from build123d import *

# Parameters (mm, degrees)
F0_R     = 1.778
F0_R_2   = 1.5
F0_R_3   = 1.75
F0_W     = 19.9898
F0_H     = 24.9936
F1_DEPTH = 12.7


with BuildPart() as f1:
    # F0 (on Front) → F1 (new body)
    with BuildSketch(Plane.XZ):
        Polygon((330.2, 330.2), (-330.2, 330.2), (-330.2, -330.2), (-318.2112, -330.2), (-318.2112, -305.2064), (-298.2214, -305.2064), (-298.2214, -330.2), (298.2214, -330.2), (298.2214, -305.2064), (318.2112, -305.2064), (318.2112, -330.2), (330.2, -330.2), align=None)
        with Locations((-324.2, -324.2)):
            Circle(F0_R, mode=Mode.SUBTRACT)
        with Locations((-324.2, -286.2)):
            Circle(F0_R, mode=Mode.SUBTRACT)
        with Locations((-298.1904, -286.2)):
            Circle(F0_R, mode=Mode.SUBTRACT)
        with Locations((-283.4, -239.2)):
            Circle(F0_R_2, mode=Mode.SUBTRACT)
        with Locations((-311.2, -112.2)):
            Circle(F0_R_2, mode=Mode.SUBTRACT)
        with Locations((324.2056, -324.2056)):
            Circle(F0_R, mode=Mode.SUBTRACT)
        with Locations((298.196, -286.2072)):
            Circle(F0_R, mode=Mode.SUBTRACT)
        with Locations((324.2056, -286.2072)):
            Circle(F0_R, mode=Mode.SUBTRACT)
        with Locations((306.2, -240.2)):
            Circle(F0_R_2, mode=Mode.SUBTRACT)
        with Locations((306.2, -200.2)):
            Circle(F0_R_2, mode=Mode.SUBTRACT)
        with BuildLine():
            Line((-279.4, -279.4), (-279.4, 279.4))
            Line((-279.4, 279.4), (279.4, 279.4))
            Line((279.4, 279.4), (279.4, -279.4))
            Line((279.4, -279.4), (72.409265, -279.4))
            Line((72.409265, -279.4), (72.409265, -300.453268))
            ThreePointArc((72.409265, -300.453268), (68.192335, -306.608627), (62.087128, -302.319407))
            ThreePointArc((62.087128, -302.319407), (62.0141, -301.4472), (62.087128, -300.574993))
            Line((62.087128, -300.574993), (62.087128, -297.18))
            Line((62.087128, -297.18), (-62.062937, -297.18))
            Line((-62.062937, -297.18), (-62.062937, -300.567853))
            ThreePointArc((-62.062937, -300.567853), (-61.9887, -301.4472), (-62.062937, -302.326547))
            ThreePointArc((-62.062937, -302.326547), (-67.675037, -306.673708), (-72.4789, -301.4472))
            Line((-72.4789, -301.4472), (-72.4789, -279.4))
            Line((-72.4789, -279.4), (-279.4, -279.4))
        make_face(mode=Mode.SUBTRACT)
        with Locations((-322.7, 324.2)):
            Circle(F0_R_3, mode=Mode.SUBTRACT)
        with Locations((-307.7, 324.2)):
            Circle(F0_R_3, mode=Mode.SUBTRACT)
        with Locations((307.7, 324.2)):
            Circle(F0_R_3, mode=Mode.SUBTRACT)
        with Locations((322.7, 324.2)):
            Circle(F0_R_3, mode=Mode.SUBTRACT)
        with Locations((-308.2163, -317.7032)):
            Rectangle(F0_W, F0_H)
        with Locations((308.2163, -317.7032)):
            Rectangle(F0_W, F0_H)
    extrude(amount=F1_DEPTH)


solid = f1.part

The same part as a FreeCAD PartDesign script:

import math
import FreeCAD as App
import Part
import Sketcher
from FreeCAD import Vector
Q = App.Units.Quantity


def add_polygon(sketch, points):
    """Adds a closed chain of lines whose ends are joined by coincident constraints."""
    first, n = sketch.GeometryCount, len(points)
    for a, b in zip(points, points[1:] + points[:1]):
        sketch.addGeometry(Part.LineSegment(App.Vector(*a, 0), App.Vector(*b, 0)), False)
    for i in range(n):
        sketch.addConstraint(Sketcher.Constraint("Coincident", first + i, 2, first + (i + 1) % n, 1))

doc = App.newDocument("Part")
body = doc.addObject("PartDesign::Body", "Body")

sketch1 = body.newObject("Sketcher::SketchObject", "Sketch")
sketch1.AttachmentSupport = (doc.getObject("XZ_Plane"), [""])
sketch1.MapMode = "FlatFace"
add_polygon(sketch1, [(330.2, 330.2), (-330.2, 330.2), (-330.2, -330.2), (330.2, -330.2)])
sketch1.addGeometry(Part.Circle(Vector(-324.2, -324.2, 0), Vector(0, 0, 1), 1.778), False)
sketch1.addGeometry(Part.Circle(Vector(-324.2, -286.2, 0), Vector(0, 0, 1), 1.778), False)
sketch1.addGeometry(Part.Circle(Vector(-298.1904, -286.2, 0), Vector(0, 0, 1), 1.778), False)
sketch1.addGeometry(Part.Circle(Vector(-283.4, -239.2, 0), Vector(0, 0, 1), 1.5), False)
sketch1.addGeometry(Part.Circle(Vector(-311.2, -112.2, 0), Vector(0, 0, 1), 1.5), False)
sketch1.addGeometry(Part.LineSegment(Vector(-72.4789, -279.4, 0), Vector(-279.4, -279.4, 0)), False)
sketch1.addGeometry(Part.LineSegment(Vector(-279.4, -279.4, 0), Vector(-279.4, 279.4, 0)), False)
sketch1.addGeometry(Part.LineSegment(Vector(-279.4, 279.4, 0), Vector(279.4, 279.4, 0)), False)
sketch1.addGeometry(Part.LineSegment(Vector(279.4, 279.4, 0), Vector(279.4, -279.4, 0)), False)
sketch1.addGeometry(Part.LineSegment(Vector(279.4, -279.4, 0), Vector(72.409265, -279.4, 0)), False)
sketch1.addGeometry(Part.LineSegment(Vector(72.409265, -279.4, 0), Vector(72.409265, -300.453268, 0)), False)
sketch1.addGeometry(Part.ArcOfCircle(Part.Circle(Vector(67.2592, -301.4472, 0), Vector(0, 0, 1), 5.2451), math.radians(-170.427824), math.radians(10.923444)), False)
sketch1.addGeometry(Part.ArcOfCircle(Part.Circle(Vector(67.259199, -301.4472, 0), Vector(0, 0, 1), 5.245099), math.radians(170.427824), math.radians(189.572176)), False)
sketch1.addGeometry(Part.LineSegment(Vector(62.087128, -300.574993, 0), Vector(62.087128, -297.18, 0)), False)
sketch1.addGeometry(Part.LineSegment(Vector(62.087128, -297.18, 0), Vector(-62.062937, -297.18, 0)), False)
sketch1.addGeometry(Part.LineSegment(Vector(-62.062937, -297.18, 0), Vector(-62.062937, -300.567853, 0)), False)
sketch1.addGeometry(Part.ArcOfCircle(Part.Circle(Vector(-67.233809, -301.4472, 0), Vector(0, 0, 1), 5.245109), math.radians(-9.651263), math.radians(9.651263)), False)
sketch1.addGeometry(Part.ArcOfCircle(Part.Circle(Vector(-67.2338, -301.4472, 0), Vector(0, 0, 1), 5.2451), math.radians(179.999998), math.radians(350.348722)), False)
sketch1.addGeometry(Part.LineSegment(Vector(-72.4789, -301.4472, 0), Vector(-72.4789, -279.4, 0)), False)
sketch1.addGeometry(Part.Circle(Vector(324.2056, -324.2056, 0), Vector(0, 0, 1), 1.778), False)
sketch1.addGeometry(Part.Circle(Vector(298.196, -286.2072, 0), Vector(0, 0, 1), 1.778), False)
sketch1.addGeometry(Part.Circle(Vector(324.2056, -286.2072, 0), Vector(0, 0, 1), 1.778), False)
sketch1.addGeometry(Part.Circle(Vector(306.2, -240.2, 0), Vector(0, 0, 1), 1.5), False)
sketch1.addGeometry(Part.Circle(Vector(306.2, -200.2, 0), Vector(0, 0, 1), 1.5), False)
sketch1.addGeometry(Part.Circle(Vector(-322.7, 324.2, 0), Vector(0, 0, 1), 1.75), False)
sketch1.addGeometry(Part.Circle(Vector(-307.7, 324.2, 0), Vector(0, 0, 1), 1.75), False)
sketch1.addGeometry(Part.Circle(Vector(307.7, 324.2, 0), Vector(0, 0, 1), 1.75), False)
sketch1.addGeometry(Part.Circle(Vector(322.7, 324.2, 0), Vector(0, 0, 1), 1.75), False)
sketch1.addConstraint(Sketcher.Constraint("Coincident", 9, 2, 10, 1))
sketch1.addConstraint(Sketcher.Constraint("Coincident", 10, 2, 11, 1))
sketch1.addConstraint(Sketcher.Constraint("Coincident", 11, 2, 12, 1))
sketch1.addConstraint(Sketcher.Constraint("Coincident", 12, 2, 13, 1))
sketch1.addConstraint(Sketcher.Constraint("Coincident", 13, 2, 14, 1))
sketch1.addConstraint(Sketcher.Constraint("Coincident", 14, 2, 15, 2))
sketch1.addConstraint(Sketcher.Constraint("Tangent", 15, 1, 16, 2))
sketch1.addConstraint(Sketcher.Constraint("Coincident", 16, 1, 17, 1))
sketch1.addConstraint(Sketcher.Constraint("Coincident", 17, 2, 18, 1))
sketch1.addConstraint(Sketcher.Constraint("Coincident", 18, 2, 19, 1))
sketch1.addConstraint(Sketcher.Constraint("Coincident", 19, 2, 20, 2))
sketch1.addConstraint(Sketcher.Constraint("Tangent", 20, 1, 21, 2))
sketch1.addConstraint(Sketcher.Constraint("Tangent", 21, 1, 22, 1))
sketch1.addConstraint(Sketcher.Constraint("Coincident", 22, 2, 9, 1))
sketch1.addConstraint(Sketcher.Constraint("Horizontal", 0))
sketch1.addConstraint(Sketcher.Constraint("Vertical", 1))
sketch1.addConstraint(Sketcher.Constraint("Horizontal", 2))
sketch1.addConstraint(Sketcher.Constraint("Vertical", 3))
sketch1.addConstraint(Sketcher.Constraint("Horizontal", 9))
sketch1.addConstraint(Sketcher.Constraint("Vertical", 10))
sketch1.addConstraint(Sketcher.Constraint("Horizontal", 11))
sketch1.addConstraint(Sketcher.Constraint("Vertical", 12))
sketch1.addConstraint(Sketcher.Constraint("Horizontal", 13))
sketch1.addConstraint(Sketcher.Constraint("Vertical", 14))
sketch1.addConstraint(Sketcher.Constraint("Vertical", 17))
sketch1.addConstraint(Sketcher.Constraint("Horizontal", 18))
sketch1.addConstraint(Sketcher.Constraint("Vertical", 19))
sketch1.addConstraint(Sketcher.Constraint("Vertical", 22))
sketch1.addConstraint(Sketcher.Constraint("Equal", 4, 5))
sketch1.addConstraint(Sketcher.Constraint("Equal", 5, 6))
sketch1.addConstraint(Sketcher.Constraint("Equal", 7, 8))
sketch1.addConstraint(Sketcher.Constraint("Equal", 15, 16))
sketch1.addConstraint(Sketcher.Constraint("Equal", 16, 21))
sketch1.addConstraint(Sketcher.Constraint("Equal", 6, 23))
sketch1.addConstraint(Sketcher.Constraint("Equal", 23, 24))
sketch1.addConstraint(Sketcher.Constraint("Equal", 24, 25))
sketch1.addConstraint(Sketcher.Constraint("Equal", 8, 26))
sketch1.addConstraint(Sketcher.Constraint("Equal", 26, 27))
sketch1.addConstraint(Sketcher.Constraint("Equal", 28, 29))
sketch1.addConstraint(Sketcher.Constraint("Equal", 29, 30))
sketch1.addConstraint(Sketcher.Constraint("Equal", 30, 31))
sketch1.addConstraint(Sketcher.Constraint("Symmetric", 0, 2, 2, 2, -1, 1))
sketch1.addConstraint(Sketcher.Constraint("Symmetric", 9, 2, 11, 2, -1, 1))
sketch1.addConstraint(Sketcher.Constraint("Symmetric", 29, 3, 30, 3, -2))
sketch1.addConstraint(Sketcher.Constraint("Symmetric", 28, 3, 31, 3, -2))
sketch1.addConstraint(Sketcher.Constraint("Horizontal", 5, 3, 6, 3))
sketch1.addConstraint(Sketcher.Constraint("Horizontal", 16, 3, 20, 3))
sketch1.addConstraint(Sketcher.Constraint("Horizontal", 16, 3, 21, 3))
sketch1.addConstraint(Sketcher.Constraint("Horizontal", 24, 3, 25, 3))
sketch1.addConstraint(Sketcher.Constraint("Horizontal", 28, 3, 29, 3))
sketch1.addConstraint(Sketcher.Constraint("Horizontal", 9, 2, 12, 2))
sketch1.addConstraint(Sketcher.Constraint("Vertical", 4, 3, 5, 3))
sketch1.addConstraint(Sketcher.Constraint("Vertical", 23, 3, 25, 3))
sketch1.addConstraint(Sketcher.Constraint("Vertical", 26, 3, 27, 3))
sketch1.addConstraint(Sketcher.Constraint("Vertical", 15, 1, 16, 1))
sketch1.addConstraint(Sketcher.Constraint("Vertical", 19, 2, 20, 1))
sketch1.addConstraint(Sketcher.Constraint("Equal", 2, 1))
sketch1.addConstraint(Sketcher.Constraint("Equal", 11, 10))
sketch1.addConstraint(Sketcher.Constraint("Diameter", 4, Q("0.14 in")))
sketch1.addConstraint(Sketcher.Constraint("DistanceX", 0, 2, 0, 1, Q("26 in")))
sketch1.addConstraint(Sketcher.Constraint("DistanceX", 11, 1, 11, 2, Q("22 in")))
sketch1.addConstraint(Sketcher.Constraint("DistanceY", 7, 3, 8, 3, Q("5 in")))
sketch1.addConstraint(Sketcher.Constraint("DistanceY", 17, 2, -1, 1, Q("11.7 in")))
sketch1.addConstraint(Sketcher.Constraint("Radius", 15, Q("0.2065 in")))
sketch1.addConstraint(Sketcher.Constraint("DistanceY", 15, 3, 24, 3, Q("0.6 in")))
sketch1.addConstraint(Sketcher.Constraint("Diameter", 7, Q("3 mm")))
sketch1.addConstraint(Sketcher.Constraint("Diameter", 28, Q("3.5 mm")))
sketch1.addConstraint(Sketcher.Constraint("DistanceY", 22, 1, 22, 2, Q("0.868 in")))
sketch1.addConstraint(Sketcher.Constraint("DistanceX", -1, 1, 24, 3, Q("11.74 in")))
sketch1.addConstraint(Sketcher.Constraint("DistanceX", 9, 2, 9, 1, Q("8.1465 in")))
sketch1.addConstraint(Sketcher.Constraint("DistanceX", -1, 1, 15, 3, Q("2.648 in")))
sketch1.addConstraint(Sketcher.Constraint("DistanceX", -1, 1, 23, 3, Q("12.764 in")))
sketch1.addConstraint(Sketcher.Constraint("DistanceY", 23, 3, -1, 1, Q("12.764 in")))
sketch1.addConstraint(Sketcher.Constraint("DistanceX", 5, 3, 6, 3, Q("1.024 in")))
sketch1.addConstraint(Sketcher.Constraint("DistanceY", 14, 2, 14, 1, Q("21.053268 mm")))
sketch1.addConstraint(Sketcher.Constraint("DistanceX", 4, 3, -1, 1, Q("324.2 mm")))
sketch1.addConstraint(Sketcher.Constraint("DistanceY", 4, 3, -1, 1, Q("324.2 mm")))
sketch1.addConstraint(Sketcher.Constraint("DistanceY", 5, 3, -1, 1, Q("286.2 mm")))
sketch1.addConstraint(Sketcher.Constraint("DistanceX", 7, 3, -1, 1, Q("283.4 mm")))
sketch1.addConstraint(Sketcher.Constraint("DistanceY", 7, 3, -1, 1, Q("239.2 mm")))
sketch1.addConstraint(Sketcher.Constraint("DistanceX", 8, 3, -1, 1, Q("311.2 mm")))
sketch1.addConstraint(Sketcher.Constraint("DistanceX", -1, 1, 26, 3, Q("306.2 mm")))
sketch1.addConstraint(Sketcher.Constraint("DistanceY", 26, 3, -1, 1, Q("240.2 mm")))
sketch1.addConstraint(Sketcher.Constraint("DistanceY", 27, 3, -1, 1, Q("200.2 mm")))
sketch1.addConstraint(Sketcher.Constraint("DistanceX", 28, 3, -1, 1, Q("322.7 mm")))
sketch1.addConstraint(Sketcher.Constraint("DistanceY", -1, 1, 28, 3, Q("324.2 mm")))
sketch1.addConstraint(Sketcher.Constraint("DistanceX", 29, 3, -1, 1, Q("307.7 mm")))
sketch1.addConstraint(Sketcher.Constraint("DistanceX", 18, 2, 18, 1, Q("124.150065 mm")))
sketch1.addConstraint(Sketcher.Constraint("DistanceY", 17, 1, 17, 2, Q("3.394993 mm")))
pad1 = body.newObject("PartDesign::Pad", "Pad")
pad1.Profile = sketch1
pad1.Length = Q("0.5 in")

doc.recompute()
